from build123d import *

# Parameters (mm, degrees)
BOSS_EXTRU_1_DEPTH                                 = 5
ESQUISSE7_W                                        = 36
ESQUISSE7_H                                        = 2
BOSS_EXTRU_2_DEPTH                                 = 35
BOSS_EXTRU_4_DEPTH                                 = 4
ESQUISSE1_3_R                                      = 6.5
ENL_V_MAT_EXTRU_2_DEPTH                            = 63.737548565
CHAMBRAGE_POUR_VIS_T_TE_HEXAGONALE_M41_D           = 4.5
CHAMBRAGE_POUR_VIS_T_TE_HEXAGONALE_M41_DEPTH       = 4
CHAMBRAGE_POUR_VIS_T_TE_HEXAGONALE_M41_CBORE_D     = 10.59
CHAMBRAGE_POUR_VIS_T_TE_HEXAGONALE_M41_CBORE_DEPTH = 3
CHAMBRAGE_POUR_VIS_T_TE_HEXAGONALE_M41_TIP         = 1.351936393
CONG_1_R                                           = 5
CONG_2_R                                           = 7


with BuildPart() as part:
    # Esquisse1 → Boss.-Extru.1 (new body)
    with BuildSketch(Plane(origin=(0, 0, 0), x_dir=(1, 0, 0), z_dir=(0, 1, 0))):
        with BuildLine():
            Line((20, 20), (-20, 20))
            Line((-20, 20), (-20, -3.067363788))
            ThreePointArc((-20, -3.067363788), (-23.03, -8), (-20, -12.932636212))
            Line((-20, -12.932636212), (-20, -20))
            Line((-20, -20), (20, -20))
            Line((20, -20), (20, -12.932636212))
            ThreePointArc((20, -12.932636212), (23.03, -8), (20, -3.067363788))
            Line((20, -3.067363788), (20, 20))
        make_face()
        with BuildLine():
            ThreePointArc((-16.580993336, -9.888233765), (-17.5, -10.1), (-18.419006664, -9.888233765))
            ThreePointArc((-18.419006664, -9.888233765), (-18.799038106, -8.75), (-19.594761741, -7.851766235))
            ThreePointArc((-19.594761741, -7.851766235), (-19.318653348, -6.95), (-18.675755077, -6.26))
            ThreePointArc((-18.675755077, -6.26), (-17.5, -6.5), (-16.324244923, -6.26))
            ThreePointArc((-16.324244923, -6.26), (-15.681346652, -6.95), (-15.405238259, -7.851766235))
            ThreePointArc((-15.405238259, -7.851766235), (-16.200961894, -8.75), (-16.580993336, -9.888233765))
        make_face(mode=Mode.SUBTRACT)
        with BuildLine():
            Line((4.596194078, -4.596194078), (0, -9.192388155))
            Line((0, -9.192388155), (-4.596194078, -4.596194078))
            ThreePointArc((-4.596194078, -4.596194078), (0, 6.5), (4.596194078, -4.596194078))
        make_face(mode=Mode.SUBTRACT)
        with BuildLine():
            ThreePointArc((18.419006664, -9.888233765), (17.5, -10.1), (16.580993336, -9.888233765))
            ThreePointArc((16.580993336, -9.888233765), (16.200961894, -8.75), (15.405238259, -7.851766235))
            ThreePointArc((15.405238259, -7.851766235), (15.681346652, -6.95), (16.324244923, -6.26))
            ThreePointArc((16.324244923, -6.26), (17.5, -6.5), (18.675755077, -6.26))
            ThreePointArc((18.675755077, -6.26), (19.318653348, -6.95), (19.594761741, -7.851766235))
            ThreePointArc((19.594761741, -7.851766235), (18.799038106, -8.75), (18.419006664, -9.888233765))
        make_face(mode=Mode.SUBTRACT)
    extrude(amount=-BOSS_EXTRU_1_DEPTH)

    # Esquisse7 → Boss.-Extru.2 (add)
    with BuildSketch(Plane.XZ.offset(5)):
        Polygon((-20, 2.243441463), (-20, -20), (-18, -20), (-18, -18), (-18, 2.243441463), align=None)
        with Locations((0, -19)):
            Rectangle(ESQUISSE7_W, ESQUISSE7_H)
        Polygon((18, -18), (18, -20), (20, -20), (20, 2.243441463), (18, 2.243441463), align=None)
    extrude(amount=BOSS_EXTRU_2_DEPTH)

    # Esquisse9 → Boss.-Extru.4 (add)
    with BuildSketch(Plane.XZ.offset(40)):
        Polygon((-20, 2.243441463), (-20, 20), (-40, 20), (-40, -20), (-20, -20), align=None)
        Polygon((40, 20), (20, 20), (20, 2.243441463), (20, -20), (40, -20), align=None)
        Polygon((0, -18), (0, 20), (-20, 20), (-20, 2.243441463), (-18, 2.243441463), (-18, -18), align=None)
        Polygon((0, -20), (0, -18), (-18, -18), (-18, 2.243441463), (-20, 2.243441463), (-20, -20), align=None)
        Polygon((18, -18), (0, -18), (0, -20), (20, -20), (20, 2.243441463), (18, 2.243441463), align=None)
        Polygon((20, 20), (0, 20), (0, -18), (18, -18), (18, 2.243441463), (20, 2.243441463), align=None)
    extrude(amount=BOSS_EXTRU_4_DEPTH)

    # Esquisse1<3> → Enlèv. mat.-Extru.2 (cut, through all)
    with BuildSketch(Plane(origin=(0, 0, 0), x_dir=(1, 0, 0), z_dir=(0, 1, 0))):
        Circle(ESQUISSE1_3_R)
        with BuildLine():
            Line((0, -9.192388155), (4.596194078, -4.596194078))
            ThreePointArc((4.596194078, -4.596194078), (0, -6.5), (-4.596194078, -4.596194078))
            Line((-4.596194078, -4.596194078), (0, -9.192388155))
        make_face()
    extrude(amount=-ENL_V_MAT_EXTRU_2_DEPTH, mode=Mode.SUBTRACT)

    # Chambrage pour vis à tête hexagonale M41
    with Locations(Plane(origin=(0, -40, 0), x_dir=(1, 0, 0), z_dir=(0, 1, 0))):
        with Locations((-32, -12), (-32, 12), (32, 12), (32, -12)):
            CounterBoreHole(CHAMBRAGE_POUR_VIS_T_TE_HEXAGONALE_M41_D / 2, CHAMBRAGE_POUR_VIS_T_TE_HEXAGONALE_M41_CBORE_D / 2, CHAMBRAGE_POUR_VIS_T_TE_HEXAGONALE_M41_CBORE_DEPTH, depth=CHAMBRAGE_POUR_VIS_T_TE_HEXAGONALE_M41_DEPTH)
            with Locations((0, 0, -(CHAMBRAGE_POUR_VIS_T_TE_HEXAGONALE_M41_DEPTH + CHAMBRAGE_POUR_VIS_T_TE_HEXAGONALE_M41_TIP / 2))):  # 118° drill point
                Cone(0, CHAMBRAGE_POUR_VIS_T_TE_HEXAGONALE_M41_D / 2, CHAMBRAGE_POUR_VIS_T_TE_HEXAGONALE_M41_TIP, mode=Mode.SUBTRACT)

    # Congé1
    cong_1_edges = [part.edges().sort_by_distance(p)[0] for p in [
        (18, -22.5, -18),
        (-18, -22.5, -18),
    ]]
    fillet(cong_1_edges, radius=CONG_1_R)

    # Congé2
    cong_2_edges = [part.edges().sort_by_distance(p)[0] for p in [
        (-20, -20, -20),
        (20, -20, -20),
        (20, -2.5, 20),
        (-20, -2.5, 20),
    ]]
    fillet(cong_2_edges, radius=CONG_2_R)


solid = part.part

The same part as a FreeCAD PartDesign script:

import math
import FreeCAD as App
import Part
import Sketcher

V = App.Vector
Q = App.Units.Quantity


def edges_at(feature, points):
    """Names of the edges that pass closest to the given points."""
    edges = feature.Shape.Edges
    near = lambda p: min(range(len(edges)), key=lambda i: edges[i].distToShape(Part.Vertex(*p))[0])
    return sorted({f"Edge{near(p) + 1}" for p in points})


def add_polygon(sketch, points):
    """Adds a closed chain of lines whose ends are joined by coincident constraints."""
    first, n = sketch.GeometryCount, len(points)
    for a, b in zip(points, points[1:] + points[:1]):
        sketch.addGeometry(Part.LineSegment(App.Vector(*a, 0), App.Vector(*b, 0)), False)
    for i in range(n):
        sketch.addConstraint(Sketcher.Constraint("Coincident", first + i, 2, first + (i + 1) % n, 1))

doc = App.newDocument("Part")
body = doc.addObject("PartDesign::Body", "Body")

# Sketch on XZ plane
sketch1 = body.newObject("Sketcher::SketchObject", "Sketch")
sketch1.AttachmentSupport = (doc.getObject("XZ_Plane"), [""])
sketch1.MapMode = "FlatFace"
sketch1.addGeometry(Part.LineSegment(V(20, -20, 0), V(-20, -20, 0)), False)
sketch1.addGeometry(Part.LineSegment(V(-20, -20, 0), V(-20, 3.067364, 0)), False)
sketch1.addGeometry(Part.ArcOfCircle(Part.Circle(V(-17.5, 8, 0), V(0, 0, 1), 5.53), math.radians(116.877185), math.radians(243.122815)), False)
sketch1.addGeometry(Part.LineSegment(V(-20, 12.932636, 0), V(-20, 20, 0)), False)
sketch1.addGeometry(Part.LineSegment(V(-20, 20, 0), V(20, 20, 0)), False)
sketch1.addGeometry(Part.LineSegment(V(20, 20, 0), V(20, 12.932636, 0)), False)
sketch1.addGeometry(Part.ArcOfCircle(Part.Circle(V(17.5, 8, 0), V(0, 0, 1), 5.53), math.radians(-63.122815), math.radians(63.122815)), False)
sketch1.addGeometry(Part.LineSegment(V(20, 3.067364, 0), V(20, -20, 0)), False)
sketch1.addGeometry(Part.ArcOfCircle(Part.Circle(V(-13.602886, 10.25, 0), V(0, 0, 1), 3), math.radians(-173.073918), math.radians(-126.926082)), False)
sketch1.addGeometry(Part.ArcOfCircle(Part.Circle(V(-17.5, 8, 0), V(0, 0, 1), 2.1), math.radians(64.047732), math.radians(115.952268)), False)
sketch1.addGeometry(Part.ArcOfCircle(Part.Circle(V(-21.397114, 10.25, 0), V(0, 0, 1), 3), math.radians(-53.073918), math.radians(-6.926082)), False)
sketch1.addGeometry(Part.ArcOfCircle(Part.Circle(V(-17.5, 8, 0), V(0, 0, 1), 2.1), math.radians(-175.952268), math.radians(-124.047732)), False)
sketch1.addGeometry(Part.ArcOfCircle(Part.Circle(V(-17.5, 3.5, 0), V(0, 0, 1), 3), math.radians(66.926082), math.radians(113.073918)), False)
sketch1.addGeometry(Part.ArcOfCircle(Part.Circle(V(-17.5, 8, 0), V(0, 0, 1), 2.1), math.radians(-55.952268), math.radians(-4.047732)), False)
sketch1.addGeometry(Part.ArcOfCircle(Part.Circle(V(21.397114, 10.25, 0), V(0, 0, 1), 3), math.radians(-173.073918), math.radians(-126.926082)), False)
sketch1.addGeometry(Part.ArcOfCircle(Part.Circle(V(17.5, 8, 0), V(0, 0, 1), 2.1), math.radians(64.047732), math.radians(115.952268)), False)
sketch1.addGeometry(Part.ArcOfCircle(Part.Circle(V(13.602886, 10.25, 0), V(0, 0, 1), 3), math.radians(-53.073918), math.radians(-6.926082)), False)
sketch1.addGeometry(Part.ArcOfCircle(Part.Circle(V(17.5, 8, 0), V(0, 0, 1), 2.1), math.radians(-175.952268), math.radians(-124.047732)), False)
sketch1.addGeometry(Part.ArcOfCircle(Part.Circle(V(17.5, 3.5, 0), V(0, 0, 1), 3), math.radians(66.926082), math.radians(113.073918)), False)
sketch1.addGeometry(Part.ArcOfCircle(Part.Circle(V(17.5, 8, 0), V(0, 0, 1), 2.1), math.radians(-55.952268), math.radians(-4.047732)), False)
sketch1.addGeometry(Part.ArcOfCircle(Part.Circle(V(0, 0, 0), V(0, 0, 1), 6.5), math.radians(135), math.radians(405)), False)
sketch1.addGeometry(Part.LineSegment(V(4.596194, 4.596194, 0), V(0, 9.192388, 0)), False)
sketch1.addGeometry(Part.LineSegment(V(0, 9.192388, 0), V(-4.596194, 4.596194, 0)), False)
sketch1.addConstraint(Sketcher.Constraint("Coincident", 0, 2, 1, 1))
sketch1.addConstraint(Sketcher.Constraint("Coincident", 1, 2, 2, 2))
sketch1.addConstraint(Sketcher.Constraint("Coincident", 2, 1, 3, 1))
sketch1.addConstraint(Sketcher.Constraint("Coincident", 3, 2, 4, 1))
sketch1.addConstraint(Sketcher.Constraint("Coincident", 4, 2, 5, 1))
sketch1.addConstraint(Sketcher.Constraint("Coincident", 5, 2, 6, 2))
sketch1.addConstraint(Sketcher.Constraint("Coincident", 6, 1, 7, 1))
sketch1.addConstraint(Sketcher.Constraint("Coincident", 7, 2, 0, 1))
sketch1.addConstraint(Sketcher.Constraint("Coincident", 8, 1, 9, 1))
sketch1.addConstraint(Sketcher.Constraint("Coincident", 9, 2, 10, 2))
sketch1.addConstraint(Sketcher.Constraint("Coincident", 10, 1, 11, 1))
sketch1.addConstraint(Sketcher.Constraint("Coincident", 11, 2, 12, 2))
sketch1.addConstraint(Sketcher.Constraint("Coincident", 12, 1, 13, 1))
sketch1.addConstraint(Sketcher.Constraint("Coincident", 13, 2, 8, 2))
sketch1.addConstraint(Sketcher.Constraint("Coincident", 14, 1, 15, 1))
sketch1.addConstraint(Sketcher.Constraint("Coincident", 15, 2, 16, 2))
sketch1.addConstraint(Sketcher.Constraint("Coincident", 16, 1, 17, 1))
sketch1.addConstraint(Sketcher.Constraint("Coincident", 17, 2, 18, 2))
sketch1.addConstraint(Sketcher.Constraint("Coincident", 18, 1, 19, 1))
sketch1.addConstraint(Sketcher.Constraint("Coincident", 19, 2, 14, 2))
sketch1.addConstraint(Sketcher.Constraint("Tangent", 20, 2, 21, 1))
sketch1.addConstraint(Sketcher.Constraint("Coincident", 21, 2, 22, 1))
sketch1.addConstraint(Sketcher.Constraint("Tangent", 22, 2, 20, 1))
sketch1.addConstraint(Sketcher.Constraint("Horizontal", 0))
sketch1.addConstraint(Sketcher.Constraint("Vertical", 1))
sketch1.addConstraint(Sketcher.Constraint("Vertical", 3))
sketch1.addConstraint(Sketcher.Constraint("Horizontal", 4))
sketch1.addConstraint(Sketcher.Constraint("Vertical", 5))
sketch1.addConstraint(Sketcher.Constraint("Vertical", 7))
sketch1.addConstraint(Sketcher.Constraint("Coincident", 20, 3, -1, 1))
sketch1.addConstraint(Sketcher.Constraint("Coincident", 9, 3, 2, 3))
sketch1.addConstraint(Sketcher.Constraint("Coincident", 11, 3, 2, 3))
sketch1.addConstraint(Sketcher.Constraint("Coincident", 13, 3, 2, 3))
sketch1.addConstraint(Sketcher.Constraint("Coincident", 15, 3, 6, 3))
sketch1.addConstraint(Sketcher.Constraint("Coincident", 17, 3, 6, 3))
sketch1.addConstraint(Sketcher.Constraint("Coincident", 19, 3, 6, 3))
sketch1.addConstraint(Sketcher.Constraint("Equal", 2, 6))
sketch1.addConstraint(Sketcher.Constraint("Equal", 8, 10))
sketch1.addConstraint(Sketcher.Constraint("Equal", 9, 11))
sketch1.addConstraint(Sketcher.Constraint("Equal", 10, 12))
sketch1.addConstraint(Sketcher.Constraint("Equal", 11, 13))
sketch1.addConstraint(Sketcher.Constraint("Equal", 12, 14))
sketch1.addConstraint(Sketcher.Constraint("Equal", 13, 15))
sketch1.addConstraint(Sketcher.Constraint("Equal", 14, 16))
sketch1.addConstraint(Sketcher.Constraint("Equal", 15, 17))
sketch1.addConstraint(Sketcher.Constraint("Equal", 16, 18))
sketch1.addConstraint(Sketcher.Constraint("Equal", 17, 19))
sketch1.addConstraint(Sketcher.Constraint("Symmetric", 0, 2, 4, 2, -1, 1))
sketch1.addConstraint(Sketcher.Constraint("Symmetric", 2, 3, 6, 3, -2))
sketch1.addConstraint(Sketcher.Constraint("Symmetric", 10, 3, 14, 3, -2))
sketch1.addConstraint(Sketcher.Constraint("Symmetric", 8, 3, 16, 3, -2))
sketch1.addConstraint(Sketcher.Constraint("Symmetric", 12, 3, 18, 3, -2))
sketch1.addConstraint(Sketcher.Constraint("PointOnObject", 21, 2, -2))
sketch1.addConstraint(Sketcher.Constraint("Perpendicular", 21, 22))
sketch1.addConstraint(Sketcher.Constraint("Horizontal", 8, 3, 10, 3))
sketch1.addConstraint(Sketcher.Constraint("Horizontal", 2, 1, 5, 2))
sketch1.addConstraint(Sketcher.Constraint("Horizontal", 1, 2, 6, 1))
sketch1.addConstraint(Sketcher.Constraint("Horizontal", 8, 1, 9, 2))
sketch1.addConstraint(Sketcher.Constraint("Horizontal", 11, 2, 12, 1))
sketch1.addConstraint(Sketcher.Constraint("Radius", 8, Q("3 mm")))
sketch1.addConstraint(Sketcher.Constraint("Radius", 9, Q("2.1 mm")))
sketch1.addConstraint(Sketcher.Constraint("Radius", 20, Q("6.5 mm")))
sketch1.addConstraint(Sketcher.Constraint("DistanceX", 0, 2, 0, 1, Q("40 mm")))
sketch1.addConstraint(Sketcher.Constraint("Radius", 2, Q("5.53 mm")))
sketch1.addConstraint(Sketcher.Constraint("DistanceY", -1, 1, 2, 3, Q("8 mm")))
sketch1.addConstraint(Sketcher.Constraint("DistanceY", 0, 2, -1, 1, Q("20 mm")))
sketch1.addConstraint(Sketcher.Constraint("DistanceX", 2, 3, 6, 3, Q("35 mm")))
sketch1.addConstraint(Sketcher.Constraint("DistanceY", -1, 1, 12, 3, Q("3.5 mm")))
sketch1.addConstraint(Sketcher.Constraint("DistanceY", -1, 1, 8, 3, Q("10.25 mm")))
sketch1.addConstraint(Sketcher.Constraint("DistanceX", 10, 1, -1, 1, Q("19.594762 mm")))
pad1 = body.newObject("PartDesign::Pad", "Pad")
pad1.Profile = sketch1
pad1.Length = 5

# Sketch on XZ plane
sketch2 = body.newObject("Sketcher::SketchObject", "Sketch001")
sketch2.AttachmentSupport = (doc.getObject("XZ_Plane"), [""])
sketch2.MapMode = "FlatFace"
sketch2.AttachmentOffset = App.Placement(V(0, 0, 5), App.Rotation())
add_polygon(sketch2, [(-20, 2.243441), (-20, -20), (20, -20), (20, 2.243441), (18, 2.243441), (18, -18), (-18, -18), (-18, 2.243441)])  # lines 0-7
sketch2.addConstraint(Sketcher.Constraint("Vertical", 0))
sketch2.addConstraint(Sketcher.Constraint("Horizontal", 1))
sketch2.addConstraint(Sketcher.Constraint("Vertical", 2))
sketch2.addConstraint(Sketcher.Constraint("Horizontal", 3))
sketch2.addConstraint(Sketcher.Constraint("Vertical", 4))
sketch2.addConstraint(Sketcher.Constraint("Horizontal", 5))
sketch2.addConstraint(Sketcher.Constraint("Vertical", 6))
sketch2.addConstraint(Sketcher.Constraint("Horizontal", 7))
sketch2.addConstraint(Sketcher.Constraint("Symmetric", 3, 2, 6, 2, -2))
sketch2.addConstraint(Sketcher.Constraint("Equal", 3, 7))
sketch2.addConstraint(Sketcher.Constraint("DistanceX", 1, 1, 1, 2, Q("40 mm")))
sketch2.addConstraint(Sketcher.Constraint("DistanceX", 3, 2, 3, 1, Q("2 mm")))
sketch2.addConstraint(Sketcher.Constraint("DistanceY", 0, 2, -1, 1, Q("20 mm")))
sketch2.addConstraint(Sketcher.Constraint("DistanceY", 4, 2, -1, 1, Q("18 mm")))
sketch2.addConstraint(Sketcher.Constraint("DistanceY", 0, 2, 0, 1, Q("22.243441 mm")))
pad2 = body.newObject("PartDesign::Pad", "Pad001")
pad2.Profile = sketch2
pad2.Length = 35

# Sketch on XZ plane
sketch3 = body.newObject("Sketcher::SketchObject", "Sketch002")
sketch3.AttachmentSupport = (doc.getObject("XZ_Plane"), [""])
sketch3.MapMode = "FlatFace"
sketch3.AttachmentOffset = App.Placement(V(0, 0, 40), App.Rotation())
add_polygon(sketch3, [(-40, 20), (-40, -20), (40, -20), (40, 20)])  # lines 0-3
sketch3.addConstraint(Sketcher.Constraint("Vertical", 0))
sketch3.addConstraint(Sketcher.Constraint("Horizontal", 1))
sketch3.addConstraint(Sketcher.Constraint("Vertical", 2))
sketch3.addConstraint(Sketcher.Constraint("Horizontal", 3))
sketch3.addConstraint(Sketcher.Constraint("Symmetric", 0, 2, 2, 2, -1, 1))
sketch3.addConstraint(Sketcher.Constraint("DistanceX", 1, 1, 1, 2, Q("80 mm")))
sketch3.addConstraint(Sketcher.Constraint("DistanceY", 0, 2, 0, 1, Q("40 mm")))
pad3 = body.newObject("PartDesign::Pad", "Pad002")
pad3.Profile = sketch3
pad3.Length = 4

# Sketch on XZ plane
sketch4 = body.newObject("Sketcher::SketchObject", "Sketch003")
sketch4.AttachmentSupport = (doc.getObject("XZ_Plane"), [""])
sketch4.MapMode = "FlatFace"
sketch4.addGeometry(Part.LineSegment(V(-4.596194, 4.596194, 0), V(0, 9.192388, 0)), False)
sketch4.addGeometry(Part.LineSegment(V(0, 9.192388, 0), V(4.596194, 4.596194, 0)), False)
sketch4.addGeometry(Part.ArcOfCircle(Part.Circle(V(0, 0, 0), V(0, 0, 1), 6.5), math.radians(135), math.radians(405)), False)
sketch4.addConstraint(Sketcher.Constraint("Coincident", 0, 2, 1, 1))
sketch4.addConstraint(Sketcher.Constraint("Tangent", 1, 2, 2, 2))
sketch4.addConstraint(Sketcher.Constraint("Tangent", 2, 1, 0, 1))
sketch4.addConstraint(Sketcher.Constraint("Coincident", 2, 3, -1, 1))
sketch4.addConstraint(Sketcher.Constraint("PointOnObject", 0, 2, -2))
sketch4.addConstraint(Sketcher.Constraint("Perpendicular", 0, 1))
sketch4.addConstraint(Sketcher.Constraint("Radius", 2, Q("6.5 mm")))
pocket1 = body.newObject("PartDesign::Pocket", "Pocket")
pocket1.Profile = sketch4
pocket1.Type = "ThroughAll"
pocket1.Reversed = True

# Sketch on XZ plane
sketch5 = body.newObject("Sketcher::SketchObject", "Sketch004")
sketch5.AttachmentSupport = (doc.getObject("XZ_Plane"), [""])
sketch5.MapMode = "FlatFace"
sketch5.AttachmentOffset = App.Placement(V(0, 0, 40), App.Rotation())
sketch5.addGeometry(Part.Circle(V(-32, 12, 0), V(0, 0, 1), 2.25), False)
sketch5.addGeometry(Part.Circle(V(-32, -12, 0), V(0, 0, 1), 2.25), False)
sketch5.addGeometry(Part.Circle(V(32, -12, 0), V(0, 0, 1), 2.25), False)
sketch5.addGeometry(Part.Circle(V(32, 12, 0), V(0, 0, 1), 2.25), False)
sketch5.addConstraint(Sketcher.Constraint("Equal", 0, 1))
sketch5.addConstraint(Sketcher.Constraint("Equal", 1, 2))
sketch5.addConstraint(Sketcher.Constraint("Equal", 2, 3))
sketch5.addConstraint(Sketcher.Constraint("Symmetric", 0, 3, 2, 3, -1, 1))
sketch5.addConstraint(Sketcher.Constraint("Symmetric", 1, 3, 3, 3, -1, 1))
sketch5.addConstraint(Sketcher.Constraint("Symmetric", 1, 3, 2, 3, -2))
sketch5.addConstraint(Sketcher.Constraint("Diameter", 0, Q("4.5 mm")))
sketch5.addConstraint(Sketcher.Constraint("DistanceX", 0, 3, -1, 1, Q("32 mm")))
sketch5.addConstraint(Sketcher.Constraint("DistanceY", -1, 1, 0, 3, Q("12 mm")))
doc.recompute()
hole = body.newObject("PartDesign::Hole", "Hole")
hole.Profile = sketch5
hole.ThreadType = "None"
hole.Diameter = 4.5
hole.DepthType = "Dimension"
hole.Depth = 4
hole.DrillPoint = "Angled"
hole.DrillPointAngle = 118
hole.HoleCutType = "Counterbore"
hole.HoleCutDiameter = 10.59
hole.HoleCutDepth = 3
hole.Reversed = True
doc.recompute()

fillet = body.newObject("PartDesign::Fillet", "Fillet")
fillet.Base = (hole, edges_at(hole, [(18, -22.5, -18), (-18, -22.5, -18)]))
fillet.Radius = 5
doc.recompute()

fillet2 = body.newObject("PartDesign::Fillet", "Fillet001")
fillet2.Base = (fillet, edges_at(fillet, [
    (-20, -20, -20),
    (20, -20, -20),
    (20, -2.5, 20),
    (-20, -2.5, 20),
]))
fillet2.Radius = 7

doc.recompute()
